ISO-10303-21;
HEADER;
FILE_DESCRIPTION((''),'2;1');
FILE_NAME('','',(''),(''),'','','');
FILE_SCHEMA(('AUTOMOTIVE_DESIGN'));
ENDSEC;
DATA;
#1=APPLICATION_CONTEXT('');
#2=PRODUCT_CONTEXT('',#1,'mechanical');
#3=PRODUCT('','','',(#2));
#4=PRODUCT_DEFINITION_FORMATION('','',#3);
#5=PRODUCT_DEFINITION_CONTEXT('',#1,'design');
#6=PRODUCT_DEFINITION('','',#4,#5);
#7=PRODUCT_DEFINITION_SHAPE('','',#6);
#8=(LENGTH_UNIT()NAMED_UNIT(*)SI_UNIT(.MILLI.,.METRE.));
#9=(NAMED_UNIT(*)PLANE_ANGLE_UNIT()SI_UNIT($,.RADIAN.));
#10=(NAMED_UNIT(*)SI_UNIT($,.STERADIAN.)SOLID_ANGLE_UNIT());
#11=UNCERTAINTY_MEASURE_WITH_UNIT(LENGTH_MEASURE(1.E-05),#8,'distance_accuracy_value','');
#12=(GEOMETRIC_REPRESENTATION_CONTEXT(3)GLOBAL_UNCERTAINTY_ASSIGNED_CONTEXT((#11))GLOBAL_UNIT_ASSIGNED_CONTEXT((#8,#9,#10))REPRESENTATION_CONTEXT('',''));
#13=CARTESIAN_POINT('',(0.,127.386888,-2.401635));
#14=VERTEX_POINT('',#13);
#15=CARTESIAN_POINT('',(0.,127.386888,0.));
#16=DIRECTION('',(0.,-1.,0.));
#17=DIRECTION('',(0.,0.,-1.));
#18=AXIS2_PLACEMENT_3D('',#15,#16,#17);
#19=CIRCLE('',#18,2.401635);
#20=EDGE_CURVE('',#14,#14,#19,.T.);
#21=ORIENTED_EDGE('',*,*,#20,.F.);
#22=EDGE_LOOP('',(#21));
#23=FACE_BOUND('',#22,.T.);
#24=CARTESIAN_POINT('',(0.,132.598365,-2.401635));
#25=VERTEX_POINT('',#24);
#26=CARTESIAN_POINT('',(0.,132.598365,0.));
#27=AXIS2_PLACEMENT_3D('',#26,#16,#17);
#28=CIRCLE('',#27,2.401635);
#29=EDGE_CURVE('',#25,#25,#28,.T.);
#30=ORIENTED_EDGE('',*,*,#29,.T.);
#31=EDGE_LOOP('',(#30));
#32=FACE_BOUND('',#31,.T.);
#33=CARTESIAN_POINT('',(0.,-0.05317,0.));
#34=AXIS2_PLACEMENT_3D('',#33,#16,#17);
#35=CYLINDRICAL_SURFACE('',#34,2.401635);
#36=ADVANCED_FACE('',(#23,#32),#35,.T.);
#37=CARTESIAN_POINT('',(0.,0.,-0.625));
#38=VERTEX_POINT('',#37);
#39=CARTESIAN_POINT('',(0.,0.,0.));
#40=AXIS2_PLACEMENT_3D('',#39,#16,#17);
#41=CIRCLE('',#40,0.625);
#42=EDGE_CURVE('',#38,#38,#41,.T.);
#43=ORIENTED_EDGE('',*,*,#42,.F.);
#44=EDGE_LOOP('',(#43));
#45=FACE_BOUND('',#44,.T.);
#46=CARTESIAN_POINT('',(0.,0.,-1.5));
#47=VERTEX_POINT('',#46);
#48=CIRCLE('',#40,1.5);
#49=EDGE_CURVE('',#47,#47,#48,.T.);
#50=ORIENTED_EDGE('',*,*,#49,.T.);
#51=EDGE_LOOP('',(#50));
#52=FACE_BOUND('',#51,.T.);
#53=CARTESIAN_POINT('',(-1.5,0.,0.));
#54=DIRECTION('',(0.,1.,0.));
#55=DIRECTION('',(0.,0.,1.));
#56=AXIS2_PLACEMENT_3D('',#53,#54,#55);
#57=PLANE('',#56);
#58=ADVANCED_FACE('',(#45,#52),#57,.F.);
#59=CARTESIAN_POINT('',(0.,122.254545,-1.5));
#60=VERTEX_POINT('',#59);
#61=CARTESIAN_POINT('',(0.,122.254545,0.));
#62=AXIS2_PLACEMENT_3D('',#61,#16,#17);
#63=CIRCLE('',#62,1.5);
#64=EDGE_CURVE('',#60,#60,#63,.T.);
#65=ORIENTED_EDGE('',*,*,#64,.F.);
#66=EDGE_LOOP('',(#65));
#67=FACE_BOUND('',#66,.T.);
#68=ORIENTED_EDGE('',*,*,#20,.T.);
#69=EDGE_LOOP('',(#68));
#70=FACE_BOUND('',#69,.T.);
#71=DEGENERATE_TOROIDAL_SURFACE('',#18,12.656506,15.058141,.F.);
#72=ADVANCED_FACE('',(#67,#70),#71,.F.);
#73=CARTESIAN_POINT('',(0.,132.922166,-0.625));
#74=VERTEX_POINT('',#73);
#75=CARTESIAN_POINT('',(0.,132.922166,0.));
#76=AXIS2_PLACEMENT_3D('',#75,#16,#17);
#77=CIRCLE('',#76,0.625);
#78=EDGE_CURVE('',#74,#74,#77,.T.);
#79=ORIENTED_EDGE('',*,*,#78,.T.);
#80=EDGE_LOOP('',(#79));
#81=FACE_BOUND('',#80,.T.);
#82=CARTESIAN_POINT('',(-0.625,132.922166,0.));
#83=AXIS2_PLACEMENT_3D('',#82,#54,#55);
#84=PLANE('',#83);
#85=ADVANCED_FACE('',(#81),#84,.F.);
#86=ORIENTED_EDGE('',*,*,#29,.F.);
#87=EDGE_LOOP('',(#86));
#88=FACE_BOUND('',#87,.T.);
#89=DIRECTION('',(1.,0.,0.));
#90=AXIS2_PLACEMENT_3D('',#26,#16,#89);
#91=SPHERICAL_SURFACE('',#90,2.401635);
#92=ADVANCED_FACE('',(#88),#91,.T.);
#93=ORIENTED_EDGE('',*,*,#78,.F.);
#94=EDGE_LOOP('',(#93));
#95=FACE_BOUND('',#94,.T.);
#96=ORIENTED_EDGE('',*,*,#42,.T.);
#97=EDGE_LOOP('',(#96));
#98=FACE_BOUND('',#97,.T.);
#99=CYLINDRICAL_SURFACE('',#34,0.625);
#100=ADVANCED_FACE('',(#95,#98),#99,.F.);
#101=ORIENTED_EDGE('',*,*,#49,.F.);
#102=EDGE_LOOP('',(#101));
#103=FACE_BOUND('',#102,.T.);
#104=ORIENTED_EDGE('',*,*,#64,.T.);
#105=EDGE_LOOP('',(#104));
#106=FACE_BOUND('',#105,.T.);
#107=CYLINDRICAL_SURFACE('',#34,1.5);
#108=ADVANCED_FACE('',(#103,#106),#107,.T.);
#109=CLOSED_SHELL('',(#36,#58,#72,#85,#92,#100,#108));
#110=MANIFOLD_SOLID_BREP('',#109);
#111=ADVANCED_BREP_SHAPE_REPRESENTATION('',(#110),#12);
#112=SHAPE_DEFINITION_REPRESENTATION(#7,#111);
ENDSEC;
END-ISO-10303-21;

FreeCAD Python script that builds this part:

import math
import FreeCAD as App
import Part
import Sketcher
Q = App.Units.Quantity

doc = App.newDocument("Part")
params = doc.addObject("Spreadsheet::Sheet", "Params")
for row, (alias, value) in enumerate([
    ("revolution_angle", "360 deg"),
], start=1):
    params.set(f"A{row}", alias)
    params.set(f"B{row}", "=" + value)
    params.setAlias(f"B{row}", alias)

body = doc.addObject("PartDesign::Body", "Body")

sketch1 = body.newObject("Sketcher::SketchObject", "Sketch")
sketch1.AttachmentSupport = (doc.getObject("XY_Plane"), [""])
sketch1.MapMode = "FlatFace"
sketch1.addGeometry([
    Part.LineSegment(App.Vector(-0.6, 0, 0), App.Vector(-0.6, 132.9, 0)),
    Part.LineSegment(App.Vector(-0.6, 132.9, 0), App.Vector(0, 132.9, 0)),
    Part.LineSegment(App.Vector(0, 132.9, 0), App.Vector(0, 135, 0)),
    Part.ArcOfCircle(Part.Circle(App.Vector(0, 132.6, 0), App.Vector(0, 0, 1), 2.4), math.radians(90), math.radians(180)),
    Part.LineSegment(App.Vector(-2.4, 132.6, 0), App.Vector(-2.4, 127.4, 0)),
    Part.ArcOfCircle(Part.Circle(App.Vector(12.7, 127.4, 0), App.Vector(0, 0, 1), 15.1), math.radians(180), math.radians(199.93)),
    Part.LineSegment(App.Vector(-1.5, 122.3, 0), App.Vector(-1.5, 0, 0)),
    Part.LineSegment(App.Vector(-1.5, 0, 0), App.Vector(-0.6, 0, 0)),
], False)
sketch1.addConstraint([
    Sketcher.Constraint("Coincident", 0, 2, 1, 1),
    Sketcher.Constraint("Coincident", 1, 2, 2, 1),
    Sketcher.Constraint("Coincident", 2, 2, 3, 1),
    Sketcher.Constraint("Tangent", 3, 2, 4, 1),
    Sketcher.Constraint("Tangent", 4, 2, 5, 1),
    Sketcher.Constraint("Coincident", 5, 2, 6, 1),
    Sketcher.Constraint("Coincident", 6, 2, 7, 1),
    Sketcher.Constraint("Coincident", 7, 2, 0, 1),
    Sketcher.Constraint("Vertical", 0),
    Sketcher.Constraint("Horizontal", 1),
    Sketcher.Constraint("Vertical", 2),
    Sketcher.Constraint("Vertical", 4),
    Sketcher.Constraint("Vertical", 6),
    Sketcher.Constraint("Horizontal", 7),
    Sketcher.Constraint("PointOnObject", 3, 3, -2),
    Sketcher.Constraint("PointOnObject", 1, 2, -2),
    Sketcher.Constraint("PointOnObject", 6, 2, -1),
    Sketcher.Constraint("DistanceY", -1, 1, 2, 2, Q("135 mm")),
    Sketcher.Constraint("DistanceX", 5, 2, -1, 1, Q("1.5 mm")),
    Sketcher.Constraint("DistanceX", 1, 1, 1, 2, Q("0.625 mm")),
    Sketcher.Constraint("Radius", 5, Q("15.058141 mm")),
    Sketcher.Constraint("Radius", 3, Q("2.401635 mm")),
    Sketcher.Constraint("DistanceY", 3, 3, 0, 2, Q("0.323801 mm")),
    Sketcher.Constraint("DistanceY", 4, 2, 4, 1, Q("5.211477 mm")),
])
revolution = body.newObject("PartDesign::Revolution", "Revolution")
revolution.Profile = sketch1
revolution.ReferenceAxis = (sketch1, ["V_Axis"])
revolution.setExpression("Angle", "Params.revolution_angle")

doc.recompute()
